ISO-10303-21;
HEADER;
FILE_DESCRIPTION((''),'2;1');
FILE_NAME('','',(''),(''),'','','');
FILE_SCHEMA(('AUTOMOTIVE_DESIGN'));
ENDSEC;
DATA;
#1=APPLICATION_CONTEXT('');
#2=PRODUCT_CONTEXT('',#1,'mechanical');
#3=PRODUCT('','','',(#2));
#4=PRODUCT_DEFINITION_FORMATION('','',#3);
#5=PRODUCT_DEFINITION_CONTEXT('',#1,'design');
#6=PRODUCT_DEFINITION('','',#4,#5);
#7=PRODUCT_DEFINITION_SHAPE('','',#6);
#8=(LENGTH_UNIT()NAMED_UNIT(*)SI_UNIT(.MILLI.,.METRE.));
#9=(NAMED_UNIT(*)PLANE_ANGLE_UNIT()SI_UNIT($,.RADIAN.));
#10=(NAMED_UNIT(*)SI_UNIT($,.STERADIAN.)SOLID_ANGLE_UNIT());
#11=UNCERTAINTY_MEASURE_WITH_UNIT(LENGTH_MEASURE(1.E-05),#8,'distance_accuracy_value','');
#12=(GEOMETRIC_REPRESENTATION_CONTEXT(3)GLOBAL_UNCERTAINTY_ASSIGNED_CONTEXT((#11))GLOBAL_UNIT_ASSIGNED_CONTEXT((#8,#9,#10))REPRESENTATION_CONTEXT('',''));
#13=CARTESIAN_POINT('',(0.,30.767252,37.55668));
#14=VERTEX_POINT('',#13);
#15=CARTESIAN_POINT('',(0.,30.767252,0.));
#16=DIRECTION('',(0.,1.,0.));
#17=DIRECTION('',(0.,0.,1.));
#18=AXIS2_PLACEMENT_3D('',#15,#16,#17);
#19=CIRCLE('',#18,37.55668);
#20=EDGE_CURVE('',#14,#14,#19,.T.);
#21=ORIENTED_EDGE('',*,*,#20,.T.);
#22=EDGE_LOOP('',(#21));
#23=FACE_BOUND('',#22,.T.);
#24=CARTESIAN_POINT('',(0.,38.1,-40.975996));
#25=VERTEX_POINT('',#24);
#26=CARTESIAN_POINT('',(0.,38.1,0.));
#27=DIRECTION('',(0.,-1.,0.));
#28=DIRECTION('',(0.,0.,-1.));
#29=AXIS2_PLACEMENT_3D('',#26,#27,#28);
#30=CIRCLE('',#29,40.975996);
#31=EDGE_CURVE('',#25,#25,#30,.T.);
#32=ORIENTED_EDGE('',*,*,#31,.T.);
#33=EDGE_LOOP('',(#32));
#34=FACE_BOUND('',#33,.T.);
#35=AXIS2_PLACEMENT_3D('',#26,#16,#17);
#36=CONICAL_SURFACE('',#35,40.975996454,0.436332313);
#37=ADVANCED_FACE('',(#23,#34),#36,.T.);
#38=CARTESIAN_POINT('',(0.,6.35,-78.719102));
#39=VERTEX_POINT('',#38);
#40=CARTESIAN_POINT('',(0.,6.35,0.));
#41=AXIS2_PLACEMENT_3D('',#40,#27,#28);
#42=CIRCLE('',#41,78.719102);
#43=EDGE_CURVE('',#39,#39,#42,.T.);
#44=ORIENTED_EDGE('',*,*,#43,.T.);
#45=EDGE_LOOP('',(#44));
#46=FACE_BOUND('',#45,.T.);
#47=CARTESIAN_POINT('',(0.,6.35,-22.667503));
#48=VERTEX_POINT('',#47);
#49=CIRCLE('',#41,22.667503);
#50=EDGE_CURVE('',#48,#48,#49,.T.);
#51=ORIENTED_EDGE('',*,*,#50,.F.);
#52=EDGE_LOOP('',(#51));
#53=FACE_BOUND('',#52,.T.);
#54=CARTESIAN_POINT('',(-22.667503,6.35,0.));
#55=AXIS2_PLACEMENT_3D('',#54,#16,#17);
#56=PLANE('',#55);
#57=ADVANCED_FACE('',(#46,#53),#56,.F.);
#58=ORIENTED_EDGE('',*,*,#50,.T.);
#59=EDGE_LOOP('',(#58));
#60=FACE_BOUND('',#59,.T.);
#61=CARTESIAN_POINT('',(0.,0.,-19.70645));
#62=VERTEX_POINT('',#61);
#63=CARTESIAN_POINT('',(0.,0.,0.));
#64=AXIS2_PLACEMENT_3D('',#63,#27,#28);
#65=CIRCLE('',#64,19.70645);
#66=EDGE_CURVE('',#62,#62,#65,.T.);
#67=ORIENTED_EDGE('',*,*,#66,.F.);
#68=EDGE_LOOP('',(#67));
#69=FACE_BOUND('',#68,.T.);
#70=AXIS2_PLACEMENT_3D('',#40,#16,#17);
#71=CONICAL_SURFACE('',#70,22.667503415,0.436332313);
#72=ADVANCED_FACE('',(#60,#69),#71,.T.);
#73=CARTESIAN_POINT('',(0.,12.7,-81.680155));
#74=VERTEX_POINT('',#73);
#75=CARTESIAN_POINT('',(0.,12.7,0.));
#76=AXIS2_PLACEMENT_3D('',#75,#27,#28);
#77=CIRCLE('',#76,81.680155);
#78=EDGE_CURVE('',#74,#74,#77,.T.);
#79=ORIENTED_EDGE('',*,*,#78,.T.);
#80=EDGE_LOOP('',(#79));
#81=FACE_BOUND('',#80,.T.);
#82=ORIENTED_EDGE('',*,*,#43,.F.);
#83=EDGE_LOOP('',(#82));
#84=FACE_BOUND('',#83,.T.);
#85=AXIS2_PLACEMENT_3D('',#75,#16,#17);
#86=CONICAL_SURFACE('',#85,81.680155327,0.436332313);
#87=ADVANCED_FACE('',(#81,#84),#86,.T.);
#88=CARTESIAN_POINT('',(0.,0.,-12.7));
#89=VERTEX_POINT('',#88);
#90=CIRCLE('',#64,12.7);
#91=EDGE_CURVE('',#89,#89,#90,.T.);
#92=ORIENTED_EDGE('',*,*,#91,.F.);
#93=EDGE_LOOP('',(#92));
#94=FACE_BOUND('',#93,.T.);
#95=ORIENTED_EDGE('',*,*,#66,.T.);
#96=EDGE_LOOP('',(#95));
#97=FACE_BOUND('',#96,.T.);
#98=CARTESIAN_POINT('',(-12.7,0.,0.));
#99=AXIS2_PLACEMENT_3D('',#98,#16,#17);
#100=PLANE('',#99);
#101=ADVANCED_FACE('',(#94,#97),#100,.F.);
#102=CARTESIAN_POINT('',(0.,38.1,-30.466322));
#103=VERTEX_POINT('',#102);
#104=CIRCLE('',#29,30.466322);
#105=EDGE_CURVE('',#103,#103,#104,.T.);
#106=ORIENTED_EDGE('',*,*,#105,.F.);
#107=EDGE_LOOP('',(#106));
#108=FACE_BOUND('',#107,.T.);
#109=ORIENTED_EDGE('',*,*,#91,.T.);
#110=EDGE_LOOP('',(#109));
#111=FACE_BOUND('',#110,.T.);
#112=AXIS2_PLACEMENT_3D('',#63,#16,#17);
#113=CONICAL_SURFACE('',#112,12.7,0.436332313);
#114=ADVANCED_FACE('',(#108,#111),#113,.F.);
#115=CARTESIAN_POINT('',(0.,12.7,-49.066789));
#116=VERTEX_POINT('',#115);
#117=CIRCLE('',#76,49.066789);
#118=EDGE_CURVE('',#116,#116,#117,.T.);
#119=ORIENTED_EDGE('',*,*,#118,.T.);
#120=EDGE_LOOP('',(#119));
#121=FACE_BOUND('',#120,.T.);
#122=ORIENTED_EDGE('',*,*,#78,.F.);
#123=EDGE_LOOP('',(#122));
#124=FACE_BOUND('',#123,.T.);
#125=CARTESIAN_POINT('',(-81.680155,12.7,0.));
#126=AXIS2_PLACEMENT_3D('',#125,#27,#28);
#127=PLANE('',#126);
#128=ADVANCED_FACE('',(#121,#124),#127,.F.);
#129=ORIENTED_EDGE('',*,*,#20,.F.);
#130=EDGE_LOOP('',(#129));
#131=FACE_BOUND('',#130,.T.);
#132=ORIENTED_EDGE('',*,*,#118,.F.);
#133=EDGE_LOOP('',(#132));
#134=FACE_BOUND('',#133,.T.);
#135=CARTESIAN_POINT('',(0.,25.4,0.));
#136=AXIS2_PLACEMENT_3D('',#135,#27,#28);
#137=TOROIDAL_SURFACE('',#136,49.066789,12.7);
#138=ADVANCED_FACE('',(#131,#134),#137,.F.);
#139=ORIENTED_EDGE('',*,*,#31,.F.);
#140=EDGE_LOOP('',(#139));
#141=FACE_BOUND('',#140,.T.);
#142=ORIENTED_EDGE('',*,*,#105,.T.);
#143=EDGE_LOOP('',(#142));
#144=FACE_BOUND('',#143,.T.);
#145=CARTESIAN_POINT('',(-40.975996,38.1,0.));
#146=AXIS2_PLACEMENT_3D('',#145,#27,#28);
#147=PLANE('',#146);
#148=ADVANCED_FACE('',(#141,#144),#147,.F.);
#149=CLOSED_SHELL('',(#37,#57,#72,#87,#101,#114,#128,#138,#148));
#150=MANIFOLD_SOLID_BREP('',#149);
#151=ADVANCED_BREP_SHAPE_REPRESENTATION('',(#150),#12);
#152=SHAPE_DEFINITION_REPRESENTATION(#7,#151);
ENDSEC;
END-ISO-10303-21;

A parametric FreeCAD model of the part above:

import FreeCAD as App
import Part
import Sketcher
Q = App.Units.Quantity


def edges_at(feature, points):
    """Names of the edges that pass closest to the given points."""
    edges = feature.Shape.Edges
    near = lambda p: min(range(len(edges)), key=lambda i: edges[i].distToShape(Part.Vertex(*p))[0])
    return sorted({f"Edge{near(p) + 1}" for p in points})


def add_polygon(sketch, points):
    """Adds a closed chain of lines whose ends are joined by coincident constraints."""
    first, n = sketch.GeometryCount, len(points)
    for a, b in zip(points, points[1:] + points[:1]):
        sketch.addGeometry(Part.LineSegment(App.Vector(*a, 0), App.Vector(*b, 0)), False)
    for i in range(n):
        sketch.addConstraint(Sketcher.Constraint("Coincident", first + i, 2, first + (i + 1) % n, 1))

doc = App.newDocument("Part")
body = doc.addObject("PartDesign::Body", "Body")

# Sketch on XY plane
sketch1 = doc.addObject("Sketcher::SketchObject", "Sketch")
body.addObject(sketch1)
sketch1.AttachmentSupport = (doc.XY_Plane, [""])
sketch1.MapMode = "FlatFace"
add_polygon(sketch1, [(-20, 0), (-13, 0), (-30, 38), (-41, 38), (-29, 13), (-82, 13), (-79, 6), (-23, 6)])  # lines 0-7
sketch1.addConstraint(Sketcher.Constraint("Horizontal", 0))
sketch1.addConstraint(Sketcher.Constraint("Horizontal", 2))
sketch1.addConstraint(Sketcher.Constraint("Horizontal", 4))
sketch1.addConstraint(Sketcher.Constraint("Horizontal", 6))
sketch1.addConstraint(Sketcher.Constraint("PointOnObject", 0, 2, -1))
sketch1.addConstraint(Sketcher.Constraint("Parallel", 1, 3))
sketch1.addConstraint(Sketcher.Constraint("Parallel", 3, 5))
sketch1.addConstraint(Sketcher.Constraint("Parallel", 5, 7))
sketch1.addConstraint(Sketcher.Constraint("Equal", 5, 7))
sketch1.addConstraint(Sketcher.Constraint("Angle", 1, Q("115 deg")))
sketch1.addConstraint(Sketcher.Constraint("DistanceY", 3, 2, 1, 2, Q("1 in")))
sketch1.addConstraint(Sketcher.Constraint("DistanceX", 0, 2, -1, 1, Q("0.5 in")))
sketch1.addConstraint(Sketcher.Constraint("DistanceY", -1, 1, 1, 2, Q("1.5 in")))
sketch1.addConstraint(Sketcher.Constraint("DistanceX", 6, 1, 6, 2, 56.051598))
sketch1.addConstraint(Sketcher.Constraint("DistanceX", 0, 1, 0, 2, 7.00645))
sketch1.addConstraint(Sketcher.Constraint("DistanceX", 2, 2, 2, 1, 10.509675))
revolution = doc.addObject("PartDesign::Revolution", "Revolution")
body.addObject(revolution)
revolution.Profile = sketch1
revolution.ReferenceAxis = (sketch1, ["V_Axis"])
revolution.Angle = 360
doc.recompute()

fillet = doc.addObject("PartDesign::Fillet", "Fillet")
body.addObject(fillet)
fillet.Base = (revolution, edges_at(revolution, [(0, 12.7, 29.132)]))
fillet.Radius = Q("0.5 in")

doc.recompute()
